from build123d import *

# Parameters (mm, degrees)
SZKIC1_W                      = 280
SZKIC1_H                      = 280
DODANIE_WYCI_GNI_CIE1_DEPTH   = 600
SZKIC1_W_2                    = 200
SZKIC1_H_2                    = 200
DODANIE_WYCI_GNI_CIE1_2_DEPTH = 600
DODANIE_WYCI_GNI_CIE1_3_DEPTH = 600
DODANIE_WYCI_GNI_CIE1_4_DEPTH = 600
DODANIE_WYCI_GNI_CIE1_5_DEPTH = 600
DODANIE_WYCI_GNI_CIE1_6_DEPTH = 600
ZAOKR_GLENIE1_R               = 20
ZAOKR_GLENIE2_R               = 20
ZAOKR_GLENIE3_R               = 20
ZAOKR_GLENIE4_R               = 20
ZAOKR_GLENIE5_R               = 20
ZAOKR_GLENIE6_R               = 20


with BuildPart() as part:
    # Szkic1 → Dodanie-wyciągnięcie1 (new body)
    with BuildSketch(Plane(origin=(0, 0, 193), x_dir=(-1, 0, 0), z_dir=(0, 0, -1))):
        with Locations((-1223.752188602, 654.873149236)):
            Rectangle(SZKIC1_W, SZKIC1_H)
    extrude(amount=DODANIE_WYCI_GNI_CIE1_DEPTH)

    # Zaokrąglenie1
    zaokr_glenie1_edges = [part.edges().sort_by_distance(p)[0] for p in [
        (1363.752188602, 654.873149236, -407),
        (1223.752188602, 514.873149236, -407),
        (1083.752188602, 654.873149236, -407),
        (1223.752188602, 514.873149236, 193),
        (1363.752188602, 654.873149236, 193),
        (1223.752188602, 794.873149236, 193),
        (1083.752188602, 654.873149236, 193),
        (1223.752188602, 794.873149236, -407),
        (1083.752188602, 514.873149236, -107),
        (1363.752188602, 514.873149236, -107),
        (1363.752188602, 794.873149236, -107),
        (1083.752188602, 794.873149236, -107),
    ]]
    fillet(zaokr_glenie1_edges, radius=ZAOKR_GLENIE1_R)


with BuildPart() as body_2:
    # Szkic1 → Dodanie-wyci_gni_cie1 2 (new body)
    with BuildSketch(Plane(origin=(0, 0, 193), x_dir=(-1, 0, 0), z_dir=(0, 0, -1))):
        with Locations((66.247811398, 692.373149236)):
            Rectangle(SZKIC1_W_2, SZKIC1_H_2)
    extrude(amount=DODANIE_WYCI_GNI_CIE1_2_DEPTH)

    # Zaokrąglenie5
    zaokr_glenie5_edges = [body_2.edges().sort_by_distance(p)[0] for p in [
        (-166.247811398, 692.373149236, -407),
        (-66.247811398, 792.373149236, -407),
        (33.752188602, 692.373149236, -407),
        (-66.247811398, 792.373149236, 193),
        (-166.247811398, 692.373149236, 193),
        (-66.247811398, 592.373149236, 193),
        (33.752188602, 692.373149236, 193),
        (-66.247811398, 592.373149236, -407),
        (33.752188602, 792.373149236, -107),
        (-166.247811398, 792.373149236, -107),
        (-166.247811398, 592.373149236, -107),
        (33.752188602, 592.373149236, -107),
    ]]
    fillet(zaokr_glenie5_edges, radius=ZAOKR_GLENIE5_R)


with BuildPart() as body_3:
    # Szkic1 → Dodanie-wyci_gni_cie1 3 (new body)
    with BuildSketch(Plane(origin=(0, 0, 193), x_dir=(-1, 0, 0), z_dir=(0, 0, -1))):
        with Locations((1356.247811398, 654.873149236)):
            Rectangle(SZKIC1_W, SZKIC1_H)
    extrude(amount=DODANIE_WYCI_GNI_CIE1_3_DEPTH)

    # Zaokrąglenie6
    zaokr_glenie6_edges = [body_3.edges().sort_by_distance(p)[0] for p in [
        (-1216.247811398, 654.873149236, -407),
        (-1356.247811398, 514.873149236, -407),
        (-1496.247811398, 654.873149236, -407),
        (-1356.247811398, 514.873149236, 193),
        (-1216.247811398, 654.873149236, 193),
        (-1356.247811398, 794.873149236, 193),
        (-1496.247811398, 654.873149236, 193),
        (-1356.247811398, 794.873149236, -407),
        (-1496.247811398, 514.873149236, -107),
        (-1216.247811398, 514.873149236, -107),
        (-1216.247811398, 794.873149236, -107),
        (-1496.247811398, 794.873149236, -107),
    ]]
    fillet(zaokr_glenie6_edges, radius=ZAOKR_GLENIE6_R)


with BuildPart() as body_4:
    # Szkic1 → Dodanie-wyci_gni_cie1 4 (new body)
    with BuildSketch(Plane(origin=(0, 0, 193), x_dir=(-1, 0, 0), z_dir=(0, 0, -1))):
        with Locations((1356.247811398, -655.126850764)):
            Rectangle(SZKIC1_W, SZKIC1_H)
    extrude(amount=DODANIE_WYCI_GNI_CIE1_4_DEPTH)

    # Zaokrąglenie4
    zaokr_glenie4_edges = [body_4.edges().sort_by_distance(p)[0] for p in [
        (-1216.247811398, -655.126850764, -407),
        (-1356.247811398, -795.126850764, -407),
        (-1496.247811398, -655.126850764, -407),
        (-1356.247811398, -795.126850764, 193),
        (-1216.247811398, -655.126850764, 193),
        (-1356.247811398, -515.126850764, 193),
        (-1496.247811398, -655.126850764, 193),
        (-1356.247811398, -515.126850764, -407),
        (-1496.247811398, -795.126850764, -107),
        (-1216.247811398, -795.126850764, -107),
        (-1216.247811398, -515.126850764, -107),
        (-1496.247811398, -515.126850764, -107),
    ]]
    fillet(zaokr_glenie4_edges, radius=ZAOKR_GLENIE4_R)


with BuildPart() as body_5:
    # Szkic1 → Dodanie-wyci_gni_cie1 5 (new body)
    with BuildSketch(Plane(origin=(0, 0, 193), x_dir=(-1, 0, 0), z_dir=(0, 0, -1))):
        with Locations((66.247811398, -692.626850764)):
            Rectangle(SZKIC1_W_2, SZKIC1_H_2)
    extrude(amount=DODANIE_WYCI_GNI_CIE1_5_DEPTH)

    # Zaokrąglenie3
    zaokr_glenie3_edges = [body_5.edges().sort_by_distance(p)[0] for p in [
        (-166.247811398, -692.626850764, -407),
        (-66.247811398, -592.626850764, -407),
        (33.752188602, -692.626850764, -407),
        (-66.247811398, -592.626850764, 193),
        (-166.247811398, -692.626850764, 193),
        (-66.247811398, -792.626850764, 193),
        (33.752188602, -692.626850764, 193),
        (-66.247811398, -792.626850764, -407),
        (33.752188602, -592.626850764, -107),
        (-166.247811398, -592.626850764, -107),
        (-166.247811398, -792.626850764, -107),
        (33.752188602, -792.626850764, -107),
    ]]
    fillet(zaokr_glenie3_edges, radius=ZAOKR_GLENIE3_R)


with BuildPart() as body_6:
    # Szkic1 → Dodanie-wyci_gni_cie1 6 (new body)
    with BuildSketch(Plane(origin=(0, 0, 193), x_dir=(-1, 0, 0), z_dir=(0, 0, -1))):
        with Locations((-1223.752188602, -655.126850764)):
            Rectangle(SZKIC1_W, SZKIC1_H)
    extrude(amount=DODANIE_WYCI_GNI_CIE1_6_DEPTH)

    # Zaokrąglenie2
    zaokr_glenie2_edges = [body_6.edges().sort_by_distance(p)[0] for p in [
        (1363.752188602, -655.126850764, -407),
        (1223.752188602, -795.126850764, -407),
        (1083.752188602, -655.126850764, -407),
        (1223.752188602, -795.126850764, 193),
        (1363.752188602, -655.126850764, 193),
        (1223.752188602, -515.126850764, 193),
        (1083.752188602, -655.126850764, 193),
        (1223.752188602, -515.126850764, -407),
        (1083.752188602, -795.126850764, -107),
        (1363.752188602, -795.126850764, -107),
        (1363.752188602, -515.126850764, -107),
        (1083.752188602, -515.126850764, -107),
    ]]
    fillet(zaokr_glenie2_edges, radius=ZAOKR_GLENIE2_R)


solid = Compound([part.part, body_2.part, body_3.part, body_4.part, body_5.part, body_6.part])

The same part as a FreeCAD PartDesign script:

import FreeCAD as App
import Part
import Sketcher

V = App.Vector

doc = App.newDocument("Part")
params = doc.addObject("Spreadsheet::Sheet", "Params")
for row, (alias, value) in enumerate([
    ("sketch1_width", "280 mm"),
    ("pad1_length", "600 mm"),
    ("fillet_radius", "20 mm"),
    ("sketch2_width", "200 mm"),
    ("pad2_length", "600 mm"),
    ("fillet2_radius", "20 mm"),
    ("sketch3_width", "280 mm"),
    ("pad3_length", "600 mm"),
    ("fillet3_radius", "20 mm"),
    ("sketch4_width", "280 mm"),
    ("pad4_length", "600 mm"),
    ("fillet4_radius", "20 mm"),
    ("sketch5_width", "200 mm"),
    ("pad5_length", "600 mm"),
    ("fillet5_radius", "20 mm"),
    ("sketch6_width", "280 mm"),
    ("pad6_length", "600 mm"),
    ("fillet6_radius", "20 mm"),
], start=1):
    params.set(f"A{row}", alias)
    params.set(f"B{row}", "=" + value)
    params.setAlias(f"B{row}", alias)

body = doc.addObject("PartDesign::Body", "Body")

# Sketch on XY plane
sketch1 = doc.addObject("Sketcher::SketchObject", "Sketch")
body.addObject(sketch1)
sketch1.AttachmentSupport = (doc.XY_Plane, [""])
sketch1.MapMode = "FlatFace"
sketch1.AttachmentOffset = App.Placement(V(0, 0, 193), App.Rotation())
sketch1.addGeometry(Part.LineSegment(V(1364, 795, 0), V(1364, 515, 0)), False)
sketch1.addGeometry(Part.LineSegment(V(1364, 515, 0), V(1084, 515, 0)), False)
sketch1.addGeometry(Part.LineSegment(V(1084, 515, 0), V(1084, 795, 0)), False)
sketch1.addGeometry(Part.LineSegment(V(1084, 795, 0), V(1364, 795, 0)), False)
sketch1.addConstraint(Sketcher.Constraint("Coincident", 0, 2, 1, 1))
sketch1.addConstraint(Sketcher.Constraint("Coincident", 1, 2, 2, 1))
sketch1.addConstraint(Sketcher.Constraint("Coincident", 2, 2, 3, 1))
sketch1.addConstraint(Sketcher.Constraint("Coincident", 3, 2, 0, 1))
sketch1.addConstraint(Sketcher.Constraint("Vertical", 0))
sketch1.addConstraint(Sketcher.Constraint("Horizontal", 1))
sketch1.addConstraint(Sketcher.Constraint("Vertical", 2))
sketch1.addConstraint(Sketcher.Constraint("Horizontal", 3))
sketch1.addConstraint(Sketcher.Constraint("Equal", 3, 0))
sketch1.addConstraint(Sketcher.Constraint("DistanceX", 1, 2, 1, 1, 280.0))
sketch1.addConstraint(Sketcher.Constraint("DistanceX", -1, 1, 0, 2, 1363.752189))
sketch1.addConstraint(Sketcher.Constraint("DistanceY", -1, 1, 0, 2, 514.873149))
sketch1.setExpression("Constraints[9]", "Params.sketch1_width")
pad1 = doc.addObject("PartDesign::Pad", "Pad")
body.addObject(pad1)
pad1.Profile = sketch1
pad1.setExpression("Length", "Params.pad1_length")
pad1.Reversed = True
doc.recompute()

fillet = doc.addObject("PartDesign::Fillet", "Fillet")
body.addObject(fillet)
fillet.Base = (pad1, ["Edge1"])
fillet.UseAllEdges = True
fillet.setExpression("Radius", "Params.fillet_radius")
body2 = doc.addObject("PartDesign::Body", "Body001")

# Sketch on XY plane
sketch2 = doc.addObject("Sketcher::SketchObject", "Sketch001")
body2.addObject(sketch2)
sketch2.AttachmentSupport = (doc.getObject("XY_Plane001"), [""])
sketch2.MapMode = "FlatFace"
sketch2.AttachmentOffset = App.Placement(V(0, 0, 193), App.Rotation())
sketch2.addGeometry(Part.LineSegment(V(34, 792, 0), V(34, 592, 0)), False)
sketch2.addGeometry(Part.LineSegment(V(34, 592, 0), V(-166, 592, 0)), False)
sketch2.addGeometry(Part.LineSegment(V(-166, 592, 0), V(-166, 792, 0)), False)
sketch2.addGeometry(Part.LineSegment(V(-166, 792, 0), V(34, 792, 0)), False)
sketch2.addConstraint(Sketcher.Constraint("Coincident", 0, 2, 1, 1))
sketch2.addConstraint(Sketcher.Constraint("Coincident", 1, 2, 2, 1))
sketch2.addConstraint(Sketcher.Constraint("Coincident", 2, 2, 3, 1))
sketch2.addConstraint(Sketcher.Constraint("Coincident", 3, 2, 0, 1))
sketch2.addConstraint(Sketcher.Constraint("Vertical", 0))
sketch2.addConstraint(Sketcher.Constraint("Horizontal", 1))
sketch2.addConstraint(Sketcher.Constraint("Vertical", 2))
sketch2.addConstraint(Sketcher.Constraint("Horizontal", 3))
sketch2.addConstraint(Sketcher.Constraint("Equal", 3, 0))
sketch2.addConstraint(Sketcher.Constraint("DistanceX", 1, 2, 1, 1, 200.0))
sketch2.addConstraint(Sketcher.Constraint("DistanceX", -1, 1, 0, 2, 33.752189))
sketch2.addConstraint(Sketcher.Constraint("DistanceY", -1, 1, 0, 2, 592.373149))
sketch2.setExpression("Constraints[9]", "Params.sketch2_width")
pad2 = doc.addObject("PartDesign::Pad", "Pad001")
body2.addObject(pad2)
pad2.Profile = sketch2
pad2.setExpression("Length", "Params.pad2_length")
pad2.Reversed = True
doc.recompute()

fillet2 = doc.addObject("PartDesign::Fillet", "Fillet001")
body2.addObject(fillet2)
fillet2.Base = (pad2, ["Edge1"])
fillet2.UseAllEdges = True
fillet2.setExpression("Radius", "Params.fillet2_radius")
body3 = doc.addObject("PartDesign::Body", "Body002")

# Sketch on XY plane
sketch3 = doc.addObject("Sketcher::SketchObject", "Sketch002")
body3.addObject(sketch3)
sketch3.AttachmentSupport = (doc.getObject("XY_Plane002"), [""])
sketch3.MapMode = "FlatFace"
sketch3.AttachmentOffset = App.Placement(V(0, 0, 193), App.Rotation())
sketch3.addGeometry(Part.LineSegment(V(-1216, 795, 0), V(-1216, 515, 0)), False)
sketch3.addGeometry(Part.LineSegment(V(-1216, 515, 0), V(-1496, 515, 0)), False)
sketch3.addGeometry(Part.LineSegment(V(-1496, 515, 0), V(-1496, 795, 0)), False)
sketch3.addGeometry(Part.LineSegment(V(-1496, 795, 0), V(-1216, 795, 0)), False)
sketch3.addConstraint(Sketcher.Constraint("Coincident", 0, 2, 1, 1))
sketch3.addConstraint(Sketcher.Constraint("Coincident", 1, 2, 2, 1))
sketch3.addConstraint(Sketcher.Constraint("Coincident", 2, 2, 3, 1))
sketch3.addConstraint(Sketcher.Constraint("Coincident", 3, 2, 0, 1))
sketch3.addConstraint(Sketcher.Constraint("Vertical", 0))
sketch3.addConstraint(Sketcher.Constraint("Horizontal", 1))
sketch3.addConstraint(Sketcher.Constraint("Vertical", 2))
sketch3.addConstraint(Sketcher.Constraint("Horizontal", 3))
sketch3.addConstraint(Sketcher.Constraint("Equal", 3, 0))
sketch3.addConstraint(Sketcher.Constraint("DistanceX", 1, 2, 1, 1, 280.0))
sketch3.addConstraint(Sketcher.Constraint("DistanceX", 0, 2, -1, 1, 1216.247811))
sketch3.addConstraint(Sketcher.Constraint("DistanceY", -1, 1, 0, 2, 514.873149))
sketch3.setExpression("Constraints[9]", "Params.sketch3_width")
pad3 = doc.addObject("PartDesign::Pad", "Pad002")
body3.addObject(pad3)
pad3.Profile = sketch3
pad3.setExpression("Length", "Params.pad3_length")
pad3.Reversed = True
doc.recompute()

fillet3 = doc.addObject("PartDesign::Fillet", "Fillet002")
body3.addObject(fillet3)
fillet3.Base = (pad3, ["Edge1"])
fillet3.UseAllEdges = True
fillet3.setExpression("Radius", "Params.fillet3_radius")
body4 = doc.addObject("PartDesign::Body", "Body003")

# Sketch on XY plane
sketch4 = doc.addObject("Sketcher::SketchObject", "Sketch003")
body4.addObject(sketch4)
sketch4.AttachmentSupport = (doc.getObject("XY_Plane003"), [""])
sketch4.MapMode = "FlatFace"
sketch4.AttachmentOffset = App.Placement(V(0, 0, 193), App.Rotation())
sketch4.addGeometry(Part.LineSegment(V(-1216, -515, 0), V(-1216, -795, 0)), False)
sketch4.addGeometry(Part.LineSegment(V(-1216, -795, 0), V(-1496, -795, 0)), False)
sketch4.addGeometry(Part.LineSegment(V(-1496, -795, 0), V(-1496, -515, 0)), False)
sketch4.addGeometry(Part.LineSegment(V(-1496, -515, 0), V(-1216, -515, 0)), False)
sketch4.addConstraint(Sketcher.Constraint("Coincident", 0, 2, 1, 1))
sketch4.addConstraint(Sketcher.Constraint("Coincident", 1, 2, 2, 1))
sketch4.addConstraint(Sketcher.Constraint("Coincident", 2, 2, 3, 1))
sketch4.addConstraint(Sketcher.Constraint("Coincident", 3, 2, 0, 1))
sketch4.addConstraint(Sketcher.Constraint("Vertical", 0))
sketch4.addConstraint(Sketcher.Constraint("Horizontal", 1))
sketch4.addConstraint(Sketcher.Constraint("Vertical", 2))
sketch4.addConstraint(Sketcher.Constraint("Horizontal", 3))
sketch4.addConstraint(Sketcher.Constraint("Equal", 3, 0))
sketch4.addConstraint(Sketcher.Constraint("DistanceX", 1, 2, 1, 1, 280.0))
sketch4.addConstraint(Sketcher.Constraint("DistanceX", 0, 2, -1, 1, 1216.247811))
sketch4.addConstraint(Sketcher.Constraint("DistanceY", 0, 2, -1, 1, 795.126851))
sketch4.setExpression("Constraints[9]", "Params.sketch4_width")
pad4 = doc.addObject("PartDesign::Pad", "Pad003")
body4.addObject(pad4)
pad4.Profile = sketch4
pad4.setExpression("Length", "Params.pad4_length")
pad4.Reversed = True
doc.recompute()

fillet4 = doc.addObject("PartDesign::Fillet", "Fillet003")
body4.addObject(fillet4)
fillet4.Base = (pad4, ["Edge1"])
fillet4.UseAllEdges = True
fillet4.setExpression("Radius", "Params.fillet4_radius")
body5 = doc.addObject("PartDesign::Body", "Body004")

# Sketch on XY plane
sketch5 = doc.addObject("Sketcher::SketchObject", "Sketch004")
body5.addObject(sketch5)
sketch5.AttachmentSupport = (doc.getObject("XY_Plane004"), [""])
sketch5.MapMode = "FlatFace"
sketch5.AttachmentOffset = App.Placement(V(0, 0, 193), App.Rotation())
sketch5.addGeometry(Part.LineSegment(V(34, -593, 0), V(34, -793, 0)), False)
sketch5.addGeometry(Part.LineSegment(V(34, -793, 0), V(-166, -793, 0)), False)
sketch5.addGeometry(Part.LineSegment(V(-166, -793, 0), V(-166, -593, 0)), False)
sketch5.addGeometry(Part.LineSegment(V(-166, -593, 0), V(34, -593, 0)), False)
sketch5.addConstraint(Sketcher.Constraint("Coincident", 0, 2, 1, 1))
sketch5.addConstraint(Sketcher.Constraint("Coincident", 1, 2, 2, 1))
sketch5.addConstraint(Sketcher.Constraint("Coincident", 2, 2, 3, 1))
sketch5.addConstraint(Sketcher.Constraint("Coincident", 3, 2, 0, 1))
sketch5.addConstraint(Sketcher.Constraint("Vertical", 0))
sketch5.addConstraint(Sketcher.Constraint("Horizontal", 1))
sketch5.addConstraint(Sketcher.Constraint("Vertical", 2))
sketch5.addConstraint(Sketcher.Constraint("Horizontal", 3))
sketch5.addConstraint(Sketcher.Constraint("Equal", 3, 0))
sketch5.addConstraint(Sketcher.Constraint("DistanceX", 1, 2, 1, 1, 200.0))
sketch5.addConstraint(Sketcher.Constraint("DistanceX", -1, 1, 0, 2, 33.752189))
sketch5.addConstraint(Sketcher.Constraint("DistanceY", 0, 2, -1, 1, 792.626851))
sketch5.setExpression("Constraints[9]", "Params.sketch5_width")
pad5 = doc.addObject("PartDesign::Pad", "Pad004")
body5.addObject(pad5)
pad5.Profile = sketch5
pad5.setExpression("Length", "Params.pad5_length")
pad5.Reversed = True
doc.recompute()

fillet5 = doc.addObject("PartDesign::Fillet", "Fillet004")
body5.addObject(fillet5)
fillet5.Base = (pad5, ["Edge1"])
fillet5.UseAllEdges = True
fillet5.setExpression("Radius", "Params.fillet5_radius")
body6 = doc.addObject("PartDesign::Body", "Body005")

# Sketch on XY plane
sketch6 = doc.addObject("Sketcher::SketchObject", "Sketch005")
body6.addObject(sketch6)
sketch6.AttachmentSupport = (doc.getObject("XY_Plane005"), [""])
sketch6.MapMode = "FlatFace"
sketch6.AttachmentOffset = App.Placement(V(0, 0, 193), App.Rotation())
sketch6.addGeometry(Part.LineSegment(V(1364, -515, 0), V(1364, -795, 0)), False)
sketch6.addGeometry(Part.LineSegment(V(1364, -795, 0), V(1084, -795, 0)), False)
sketch6.addGeometry(Part.LineSegment(V(1084, -795, 0), V(1084, -515, 0)), False)
sketch6.addGeometry(Part.LineSegment(V(1084, -515, 0), V(1364, -515, 0)), False)
sketch6.addConstraint(Sketcher.Constraint("Coincident", 0, 2, 1, 1))
sketch6.addConstraint(Sketcher.Constraint("Coincident", 1, 2, 2, 1))
sketch6.addConstraint(Sketcher.Constraint("Coincident", 2, 2, 3, 1))
sketch6.addConstraint(Sketcher.Constraint("Coincident", 3, 2, 0, 1))
sketch6.addConstraint(Sketcher.Constraint("Vertical", 0))
sketch6.addConstraint(Sketcher.Constraint("Horizontal", 1))
sketch6.addConstraint(Sketcher.Constraint("Vertical", 2))
sketch6.addConstraint(Sketcher.Constraint("Horizontal", 3))
sketch6.addConstraint(Sketcher.Constraint("Equal", 3, 0))
sketch6.addConstraint(Sketcher.Constraint("DistanceX", 1, 2, 1, 1, 280.0))
sketch6.addConstraint(Sketcher.Constraint("DistanceX", -1, 1, 0, 2, 1363.752189))
sketch6.addConstraint(Sketcher.Constraint("DistanceY", 0, 2, -1, 1, 795.126851))
sketch6.setExpression("Constraints[9]", "Params.sketch6_width")
pad6 = doc.addObject("PartDesign::Pad", "Pad005")
body6.addObject(pad6)
pad6.Profile = sketch6
pad6.setExpression("Length", "Params.pad6_length")
pad6.Reversed = True
doc.recompute()

fillet6 = doc.addObject("PartDesign::Fillet", "Fillet005")
body6.addObject(fillet6)
fillet6.Base = (pad6, ["Edge1"])
fillet6.UseAllEdges = True
fillet6.setExpression("Radius", "Params.fillet6_radius")

doc.recompute()
